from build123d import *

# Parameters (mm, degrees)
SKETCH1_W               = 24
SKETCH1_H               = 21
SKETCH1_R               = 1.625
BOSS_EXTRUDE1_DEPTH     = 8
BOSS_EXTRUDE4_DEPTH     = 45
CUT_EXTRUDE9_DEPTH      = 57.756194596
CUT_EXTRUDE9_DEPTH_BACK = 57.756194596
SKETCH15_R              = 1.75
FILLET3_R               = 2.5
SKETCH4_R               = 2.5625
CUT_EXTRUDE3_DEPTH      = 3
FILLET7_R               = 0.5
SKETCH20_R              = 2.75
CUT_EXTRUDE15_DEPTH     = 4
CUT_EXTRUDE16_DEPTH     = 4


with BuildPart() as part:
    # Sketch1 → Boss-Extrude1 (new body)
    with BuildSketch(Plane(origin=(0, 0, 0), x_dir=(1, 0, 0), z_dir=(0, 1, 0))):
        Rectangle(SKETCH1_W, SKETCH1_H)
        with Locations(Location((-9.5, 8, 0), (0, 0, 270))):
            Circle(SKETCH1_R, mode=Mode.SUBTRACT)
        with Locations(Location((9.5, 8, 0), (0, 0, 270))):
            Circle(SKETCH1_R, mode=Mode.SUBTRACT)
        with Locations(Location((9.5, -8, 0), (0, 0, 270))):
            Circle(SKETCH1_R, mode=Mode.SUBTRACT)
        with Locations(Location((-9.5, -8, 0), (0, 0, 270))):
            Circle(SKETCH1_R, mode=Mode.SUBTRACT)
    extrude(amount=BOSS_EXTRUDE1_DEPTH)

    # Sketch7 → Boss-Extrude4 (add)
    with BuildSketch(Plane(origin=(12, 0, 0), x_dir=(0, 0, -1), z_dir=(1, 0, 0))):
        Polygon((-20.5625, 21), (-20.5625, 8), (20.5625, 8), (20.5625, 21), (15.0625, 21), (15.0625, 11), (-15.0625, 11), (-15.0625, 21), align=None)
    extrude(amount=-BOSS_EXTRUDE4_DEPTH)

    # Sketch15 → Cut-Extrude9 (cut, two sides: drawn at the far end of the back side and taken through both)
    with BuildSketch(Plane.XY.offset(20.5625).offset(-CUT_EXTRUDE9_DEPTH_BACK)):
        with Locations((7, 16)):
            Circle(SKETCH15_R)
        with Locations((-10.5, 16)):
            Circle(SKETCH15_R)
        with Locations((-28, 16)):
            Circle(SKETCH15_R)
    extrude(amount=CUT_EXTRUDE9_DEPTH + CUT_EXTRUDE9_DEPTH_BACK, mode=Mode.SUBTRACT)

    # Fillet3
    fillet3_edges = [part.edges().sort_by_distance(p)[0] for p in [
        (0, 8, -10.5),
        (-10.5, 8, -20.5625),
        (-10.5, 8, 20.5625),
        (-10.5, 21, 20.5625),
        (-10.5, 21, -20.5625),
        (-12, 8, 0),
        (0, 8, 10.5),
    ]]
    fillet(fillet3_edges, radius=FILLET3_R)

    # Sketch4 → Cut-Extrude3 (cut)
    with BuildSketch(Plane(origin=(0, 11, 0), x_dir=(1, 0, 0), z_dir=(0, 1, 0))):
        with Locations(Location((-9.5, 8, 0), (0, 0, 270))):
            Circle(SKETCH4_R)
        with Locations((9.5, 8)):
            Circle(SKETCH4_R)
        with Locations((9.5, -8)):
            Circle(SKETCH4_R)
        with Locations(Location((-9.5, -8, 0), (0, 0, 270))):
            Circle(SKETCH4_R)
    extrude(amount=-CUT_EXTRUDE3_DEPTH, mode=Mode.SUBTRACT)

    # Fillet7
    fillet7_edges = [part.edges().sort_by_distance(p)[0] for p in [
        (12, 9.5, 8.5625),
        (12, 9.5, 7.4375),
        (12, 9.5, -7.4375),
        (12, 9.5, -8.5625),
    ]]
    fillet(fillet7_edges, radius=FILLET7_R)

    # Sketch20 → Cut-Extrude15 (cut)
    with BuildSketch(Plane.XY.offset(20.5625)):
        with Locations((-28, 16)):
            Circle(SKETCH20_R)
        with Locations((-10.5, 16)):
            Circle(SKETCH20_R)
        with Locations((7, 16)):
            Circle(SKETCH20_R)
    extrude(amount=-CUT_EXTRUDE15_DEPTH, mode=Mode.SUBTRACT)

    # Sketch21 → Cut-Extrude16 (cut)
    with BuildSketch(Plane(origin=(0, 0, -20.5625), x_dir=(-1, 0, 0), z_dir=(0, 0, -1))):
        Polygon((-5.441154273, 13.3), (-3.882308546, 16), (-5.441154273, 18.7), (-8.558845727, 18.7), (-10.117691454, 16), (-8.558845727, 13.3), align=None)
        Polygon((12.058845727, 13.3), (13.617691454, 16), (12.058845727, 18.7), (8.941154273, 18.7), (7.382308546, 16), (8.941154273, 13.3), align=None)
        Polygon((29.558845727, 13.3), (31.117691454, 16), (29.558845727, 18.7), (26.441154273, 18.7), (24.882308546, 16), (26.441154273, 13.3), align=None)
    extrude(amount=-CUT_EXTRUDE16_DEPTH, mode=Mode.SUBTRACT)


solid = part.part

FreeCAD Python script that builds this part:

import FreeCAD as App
import Part
import Sketcher
Q = App.Units.Quantity


def edges_at(feature, points):
    """Names of the edges that pass closest to the given points."""
    edges = feature.Shape.Edges
    near = lambda p: min(range(len(edges)), key=lambda i: edges[i].distToShape(Part.Vertex(*p))[0])
    return sorted({f"Edge{near(p) + 1}" for p in points})


def add_polygon(sketch, points):
    """Adds a closed chain of lines whose ends are joined by coincident constraints."""
    first, n = sketch.GeometryCount, len(points)
    for a, b in zip(points, points[1:] + points[:1]):
        sketch.addGeometry(Part.LineSegment(App.Vector(*a, 0), App.Vector(*b, 0)), False)
    for i in range(n):
        sketch.addConstraint(Sketcher.Constraint("Coincident", first + i, 2, first + (i + 1) % n, 1))

doc = App.newDocument("Part")
body = doc.addObject("PartDesign::Body", "Body")

# Sketch on XZ plane
sketch1 = doc.addObject("Sketcher::SketchObject", "Sketch")
body.addObject(sketch1)
sketch1.AttachmentSupport = (doc.XZ_Plane, [""])
sketch1.MapMode = "FlatFace"
add_polygon(sketch1, [(-12, -10.5), (-12, 10.5), (12, 10.5), (12, -10.5)])  # lines 0-3
sketch1.addGeometry(Part.Circle(App.Vector(-9.5, 8, 0), App.Vector(0, 0, 1), 1.6), False)  # 4
sketch1.addGeometry(Part.Circle(App.Vector(9.5, 8, 0), App.Vector(0, 0, 1), 1.6), False)  # 5
sketch1.addGeometry(Part.Circle(App.Vector(-9.5, -8, 0), App.Vector(0, 0, 1), 1.6), False)  # 6
sketch1.addGeometry(Part.Circle(App.Vector(9.5, -8, 0), App.Vector(0, 0, 1), 1.6), False)  # 7
sketch1.addConstraint(Sketcher.Constraint("Vertical", 0))
sketch1.addConstraint(Sketcher.Constraint("Horizontal", 1))
sketch1.addConstraint(Sketcher.Constraint("Vertical", 2))
sketch1.addConstraint(Sketcher.Constraint("Horizontal", 3))
sketch1.addConstraint(Sketcher.Constraint("Equal", 4, 5))
sketch1.addConstraint(Sketcher.Constraint("Equal", 5, 6))
sketch1.addConstraint(Sketcher.Constraint("Equal", 6, 7))
sketch1.addConstraint(Sketcher.Constraint("Symmetric", 5, 3, 6, 3, -1, 1))
sketch1.addConstraint(Sketcher.Constraint("Symmetric", 4, 3, 7, 3, -1, 1))
sketch1.addConstraint(Sketcher.Constraint("Symmetric", 0, 2, 2, 2, -1, 1))
sketch1.addConstraint(Sketcher.Constraint("Symmetric", 4, 3, 5, 3, -2))
sketch1.addConstraint(Sketcher.Constraint("Diameter", 4, 3.25))
sketch1.addConstraint(Sketcher.Constraint("DistanceX", 1, 1, 1, 2, 24.0))
sketch1.addConstraint(Sketcher.Constraint("DistanceY", 0, 1, 0, 2, 21.0))
sketch1.addConstraint(Sketcher.Constraint("DistanceY", -1, 1, 4, 3, 8.0))
sketch1.addConstraint(Sketcher.Constraint("DistanceX", 4, 3, 5, 3, 19.0))
pad1 = doc.addObject("PartDesign::Pad", "Pad")
body.addObject(pad1)
pad1.Profile = sketch1
pad1.Length = 8
pad1.Reversed = True

# Sketch on YZ plane
sketch2 = doc.addObject("Sketcher::SketchObject", "Sketch001")
body.addObject(sketch2)
sketch2.AttachmentSupport = (doc.YZ_Plane, [""])
sketch2.MapMode = "FlatFace"
sketch2.AttachmentOffset = App.Placement(App.Vector(0, 0, 12), App.Rotation())
add_polygon(sketch2, [(21, 21), (8, 21), (8, -21), (21, -21), (21, -15), (11, -15), (11, 15), (21, 15)])  # lines 0-7
sketch2.addConstraint(Sketcher.Constraint("Horizontal", 0))
sketch2.addConstraint(Sketcher.Constraint("Vertical", 1))
sketch2.addConstraint(Sketcher.Constraint("Horizontal", 2))
sketch2.addConstraint(Sketcher.Constraint("Vertical", 3))
sketch2.addConstraint(Sketcher.Constraint("Horizontal", 4))
sketch2.addConstraint(Sketcher.Constraint("Vertical", 5))
sketch2.addConstraint(Sketcher.Constraint("Horizontal", 6))
sketch2.addConstraint(Sketcher.Constraint("Vertical", 7))
sketch2.addConstraint(Sketcher.Constraint("Symmetric", 3, 2, 6, 2, -1))
sketch2.addConstraint(Sketcher.Constraint("Equal", 3, 7))
sketch2.addConstraint(Sketcher.Constraint("DistanceX", 0, 2, 0, 1, 13.0))
sketch2.addConstraint(Sketcher.Constraint("DistanceX", 4, 2, 4, 1, 10.0))
sketch2.addConstraint(Sketcher.Constraint("DistanceY", 3, 1, 3, 2, 5.5))
sketch2.addConstraint(Sketcher.Constraint("DistanceX", -1, 1, 0, 2, 8.0))
sketch2.addConstraint(Sketcher.Constraint("DistanceY", 1, 2, 1, 1, 41.125))
pad2 = doc.addObject("PartDesign::Pad", "Pad001")
body.addObject(pad2)
pad2.Profile = sketch2
pad2.Length = 45
pad2.Reversed = True

# Sketch on XY plane
sketch3 = doc.addObject("Sketcher::SketchObject", "Sketch002")
body.addObject(sketch3)
sketch3.AttachmentSupport = (doc.XY_Plane, [""])
sketch3.MapMode = "FlatFace"
sketch3.AttachmentOffset = App.Placement(App.Vector(0, 0, 20.5625), App.Rotation())
sketch3.addGeometry(Part.Circle(App.Vector(7, 16, 0), App.Vector(0, 0, 1), 1.8), False)
sketch3.addGeometry(Part.Circle(App.Vector(-10.5, 16, 0), App.Vector(0, 0, 1), 1.8), False)
sketch3.addGeometry(Part.Circle(App.Vector(-28, 16, 0), App.Vector(0, 0, 1), 1.8), False)
sketch3.addConstraint(Sketcher.Constraint("Equal", 0, 1))
sketch3.addConstraint(Sketcher.Constraint("Equal", 1, 2))
sketch3.addConstraint(Sketcher.Constraint("Horizontal", 0, 3, 1, 3))
sketch3.addConstraint(Sketcher.Constraint("Horizontal", 1, 3, 2, 3))
sketch3.addConstraint(Sketcher.Constraint("Diameter", 0, 3.5))
sketch3.addConstraint(Sketcher.Constraint("DistanceX", -1, 1, 0, 3, 7.0))
sketch3.addConstraint(Sketcher.Constraint("DistanceY", -1, 1, 0, 3, 16.0))
sketch3.addConstraint(Sketcher.Constraint("DistanceX", 2, 3, -1, 1, 28.0))
sketch3.addConstraint(Sketcher.Constraint("DistanceX", 1, 3, -1, 1, 10.5))
pocket1 = doc.addObject("PartDesign::Pocket", "Pocket")
body.addObject(pocket1)
pocket1.Profile = sketch3
pocket1.Type = "ThroughAll"
pocket1.Midplane = True
doc.recompute()

fillet = doc.addObject("PartDesign::Fillet", "Fillet")
body.addObject(fillet)
fillet.Base = (pocket1, edges_at(pocket1, [
    (0, 8, -10.5),
    (-10.5, 8, -20.562),
    (-10.5, 8, 20.562),
    (-10.5, 21, 20.562),
    (-10.5, 21, -20.562),
    (-12, 8, 0),
    (0, 8, 10.5),
]))
fillet.Radius = 2.5

# Sketch on XZ plane
sketch4 = doc.addObject("Sketcher::SketchObject", "Sketch003")
body.addObject(sketch4)
sketch4.AttachmentSupport = (doc.XZ_Plane, [""])
sketch4.MapMode = "FlatFace"
sketch4.AttachmentOffset = App.Placement(App.Vector(0, 0, -11), App.Rotation())
sketch4.addGeometry(Part.Circle(App.Vector(-9.5, -8, 0), App.Vector(0, 0, 1), 2.6), False)
sketch4.addGeometry(Part.Circle(App.Vector(9.5, -8, 0), App.Vector(0, 0, 1), 2.6), False)
sketch4.addGeometry(Part.Circle(App.Vector(9.5, 8, 0), App.Vector(0, 0, 1), 2.6), False)
sketch4.addGeometry(Part.Circle(App.Vector(-9.5, 8, 0), App.Vector(0, 0, 1), 2.6), False)
sketch4.addConstraint(Sketcher.Constraint("Equal", 0, 1))
sketch4.addConstraint(Sketcher.Constraint("Equal", 1, 2))
sketch4.addConstraint(Sketcher.Constraint("Equal", 2, 3))
sketch4.addConstraint(Sketcher.Constraint("Symmetric", 0, 3, 2, 3, -1, 1))
sketch4.addConstraint(Sketcher.Constraint("Symmetric", 1, 3, 3, 3, -1, 1))
sketch4.addConstraint(Sketcher.Constraint("Symmetric", 0, 3, 1, 3, -2))
sketch4.addConstraint(Sketcher.Constraint("Diameter", 0, 5.125))
sketch4.addConstraint(Sketcher.Constraint("DistanceY", 0, 3, -1, 1, 8.0))
sketch4.addConstraint(Sketcher.Constraint("DistanceX", 0, 3, 1, 3, 19.0))
pocket2 = doc.addObject("PartDesign::Pocket", "Pocket001")
body.addObject(pocket2)
pocket2.Profile = sketch4
pocket2.Length = 3
pocket2.Reversed = True
doc.recompute()

fillet2 = doc.addObject("PartDesign::Fillet", "Fillet001")
body.addObject(fillet2)
fillet2.Base = (pocket2, edges_at(pocket2, [
    (12, 9.5, 8.562),
    (12, 9.5, 7.438),
    (12, 9.5, -7.438),
    (12, 9.5, -8.562),
]))
fillet2.Radius = 0.5

# Sketch on XY plane
sketch5 = doc.addObject("Sketcher::SketchObject", "Sketch004")
body.addObject(sketch5)
sketch5.AttachmentSupport = (doc.XY_Plane, [""])
sketch5.MapMode = "FlatFace"
sketch5.AttachmentOffset = App.Placement(App.Vector(0, 0, 20.5625), App.Rotation())
sketch5.addGeometry(Part.Circle(App.Vector(-28, 16, 0), App.Vector(0, 0, 1), 2.8), False)
sketch5.addGeometry(Part.Circle(App.Vector(-10.5, 16, 0), App.Vector(0, 0, 1), 2.8), False)
sketch5.addGeometry(Part.Circle(App.Vector(7, 16, 0), App.Vector(0, 0, 1), 2.8), False)
sketch5.addConstraint(Sketcher.Constraint("Equal", 0, 1))
sketch5.addConstraint(Sketcher.Constraint("Equal", 1, 2))
sketch5.addConstraint(Sketcher.Constraint("Horizontal", 0, 3, 1, 3))
sketch5.addConstraint(Sketcher.Constraint("Horizontal", 1, 3, 2, 3))
sketch5.addConstraint(Sketcher.Constraint("Diameter", 0, 5.5))
sketch5.addConstraint(Sketcher.Constraint("DistanceX", 0, 3, -1, 1, 28.0))
sketch5.addConstraint(Sketcher.Constraint("DistanceY", -1, 1, 0, 3, 16.0))
sketch5.addConstraint(Sketcher.Constraint("DistanceX", -1, 1, 2, 3, 7.0))
sketch5.addConstraint(Sketcher.Constraint("DistanceX", 1, 3, -1, 1, 10.5))
pocket3 = doc.addObject("PartDesign::Pocket", "Pocket002")
body.addObject(pocket3)
pocket3.Profile = sketch5
pocket3.Length = 4

# Sketch on XY plane
sketch6 = doc.addObject("Sketcher::SketchObject", "Sketch005")
body.addObject(sketch6)
sketch6.AttachmentSupport = (doc.XY_Plane, [""])
sketch6.MapMode = "FlatFace"
sketch6.AttachmentOffset = App.Placement(App.Vector(0, 0, -20.5625), App.Rotation())
add_polygon(sketch6, [(5.4, 13.3), (3.9, 16), (5.4, 18.7), (8.6, 18.7), (10.1, 16), (8.6, 13.3)])  # lines 0-5
add_polygon(sketch6, [(-12.1, 13.3), (-13.6, 16), (-12.1, 18.7), (-8.9, 18.7), (-7.4, 16), (-8.9, 13.3)])  # lines 6-11
add_polygon(sketch6, [(-29.6, 13.3), (-31.1, 16), (-29.6, 18.7), (-26.4, 18.7), (-24.9, 16), (-26.4, 13.3)])  # lines 12-17
sketch6.addConstraint(Sketcher.Constraint("Horizontal", 2))
sketch6.addConstraint(Sketcher.Constraint("Horizontal", 5))
sketch6.addConstraint(Sketcher.Constraint("Horizontal", 8))
sketch6.addConstraint(Sketcher.Constraint("Horizontal", 11))
sketch6.addConstraint(Sketcher.Constraint("Horizontal", 14))
sketch6.addConstraint(Sketcher.Constraint("Horizontal", 17))
sketch6.addConstraint(Sketcher.Constraint("Parallel", 0, 3))
sketch6.addConstraint(Sketcher.Constraint("Parallel", 1, 4))
sketch6.addConstraint(Sketcher.Constraint("Parallel", 3, 6))
sketch6.addConstraint(Sketcher.Constraint("Parallel", 4, 7))
sketch6.addConstraint(Sketcher.Constraint("Parallel", 6, 9))
sketch6.addConstraint(Sketcher.Constraint("Parallel", 7, 10))
sketch6.addConstraint(Sketcher.Constraint("Parallel", 9, 12))
sketch6.addConstraint(Sketcher.Constraint("Parallel", 10, 13))
sketch6.addConstraint(Sketcher.Constraint("Parallel", 12, 15))
sketch6.addConstraint(Sketcher.Constraint("Parallel", 13, 16))
sketch6.addConstraint(Sketcher.Constraint("Horizontal", 0, 2, 3, 2))
sketch6.addConstraint(Sketcher.Constraint("Horizontal", 3, 2, 6, 2))
sketch6.addConstraint(Sketcher.Constraint("Horizontal", 2, 2, 7, 2))
sketch6.addConstraint(Sketcher.Constraint("Horizontal", 6, 2, 9, 2))
sketch6.addConstraint(Sketcher.Constraint("Horizontal", 5, 2, 10, 2))
sketch6.addConstraint(Sketcher.Constraint("Horizontal", 9, 2, 12, 2))
sketch6.addConstraint(Sketcher.Constraint("Horizontal", 8, 2, 13, 2))
sketch6.addConstraint(Sketcher.Constraint("Horizontal", 12, 2, 15, 2))
sketch6.addConstraint(Sketcher.Constraint("Horizontal", 11, 2, 16, 2))
sketch6.addConstraint(Sketcher.Constraint("Vertical", 2, 2, 4, 2))
sketch6.addConstraint(Sketcher.Constraint("Vertical", 1, 2, 5, 2))
sketch6.addConstraint(Sketcher.Constraint("Equal", 5, 8))
sketch6.addConstraint(Sketcher.Constraint("Equal", 11, 14))
sketch6.addConstraint(Sketcher.Constraint("Angle", 0, Q("120 deg")))
sketch6.addConstraint(Sketcher.Constraint("DistanceY", -1, 1, 0, 2, 16.0))
sketch6.addConstraint(Sketcher.Constraint("DistanceY", -1, 1, 1, 2, 18.7))
sketch6.addConstraint(Sketcher.Constraint("DistanceX", 6, 2, 0, 2, 17.5))
sketch6.addConstraint(Sketcher.Constraint("DistanceX", 12, 2, 6, 2, 17.5))
sketch6.addConstraint(Sketcher.Constraint("DistanceX", 2, 1, 2, 2, 3.117691))
sketch6.addConstraint(Sketcher.Constraint("DistanceX", -1, 1, 0, 2, 3.882309))
pocket4 = doc.addObject("PartDesign::Pocket", "Pocket003")
body.addObject(pocket4)
pocket4.Profile = sketch6
pocket4.Length = 4
pocket4.Reversed = True

doc.recompute()
